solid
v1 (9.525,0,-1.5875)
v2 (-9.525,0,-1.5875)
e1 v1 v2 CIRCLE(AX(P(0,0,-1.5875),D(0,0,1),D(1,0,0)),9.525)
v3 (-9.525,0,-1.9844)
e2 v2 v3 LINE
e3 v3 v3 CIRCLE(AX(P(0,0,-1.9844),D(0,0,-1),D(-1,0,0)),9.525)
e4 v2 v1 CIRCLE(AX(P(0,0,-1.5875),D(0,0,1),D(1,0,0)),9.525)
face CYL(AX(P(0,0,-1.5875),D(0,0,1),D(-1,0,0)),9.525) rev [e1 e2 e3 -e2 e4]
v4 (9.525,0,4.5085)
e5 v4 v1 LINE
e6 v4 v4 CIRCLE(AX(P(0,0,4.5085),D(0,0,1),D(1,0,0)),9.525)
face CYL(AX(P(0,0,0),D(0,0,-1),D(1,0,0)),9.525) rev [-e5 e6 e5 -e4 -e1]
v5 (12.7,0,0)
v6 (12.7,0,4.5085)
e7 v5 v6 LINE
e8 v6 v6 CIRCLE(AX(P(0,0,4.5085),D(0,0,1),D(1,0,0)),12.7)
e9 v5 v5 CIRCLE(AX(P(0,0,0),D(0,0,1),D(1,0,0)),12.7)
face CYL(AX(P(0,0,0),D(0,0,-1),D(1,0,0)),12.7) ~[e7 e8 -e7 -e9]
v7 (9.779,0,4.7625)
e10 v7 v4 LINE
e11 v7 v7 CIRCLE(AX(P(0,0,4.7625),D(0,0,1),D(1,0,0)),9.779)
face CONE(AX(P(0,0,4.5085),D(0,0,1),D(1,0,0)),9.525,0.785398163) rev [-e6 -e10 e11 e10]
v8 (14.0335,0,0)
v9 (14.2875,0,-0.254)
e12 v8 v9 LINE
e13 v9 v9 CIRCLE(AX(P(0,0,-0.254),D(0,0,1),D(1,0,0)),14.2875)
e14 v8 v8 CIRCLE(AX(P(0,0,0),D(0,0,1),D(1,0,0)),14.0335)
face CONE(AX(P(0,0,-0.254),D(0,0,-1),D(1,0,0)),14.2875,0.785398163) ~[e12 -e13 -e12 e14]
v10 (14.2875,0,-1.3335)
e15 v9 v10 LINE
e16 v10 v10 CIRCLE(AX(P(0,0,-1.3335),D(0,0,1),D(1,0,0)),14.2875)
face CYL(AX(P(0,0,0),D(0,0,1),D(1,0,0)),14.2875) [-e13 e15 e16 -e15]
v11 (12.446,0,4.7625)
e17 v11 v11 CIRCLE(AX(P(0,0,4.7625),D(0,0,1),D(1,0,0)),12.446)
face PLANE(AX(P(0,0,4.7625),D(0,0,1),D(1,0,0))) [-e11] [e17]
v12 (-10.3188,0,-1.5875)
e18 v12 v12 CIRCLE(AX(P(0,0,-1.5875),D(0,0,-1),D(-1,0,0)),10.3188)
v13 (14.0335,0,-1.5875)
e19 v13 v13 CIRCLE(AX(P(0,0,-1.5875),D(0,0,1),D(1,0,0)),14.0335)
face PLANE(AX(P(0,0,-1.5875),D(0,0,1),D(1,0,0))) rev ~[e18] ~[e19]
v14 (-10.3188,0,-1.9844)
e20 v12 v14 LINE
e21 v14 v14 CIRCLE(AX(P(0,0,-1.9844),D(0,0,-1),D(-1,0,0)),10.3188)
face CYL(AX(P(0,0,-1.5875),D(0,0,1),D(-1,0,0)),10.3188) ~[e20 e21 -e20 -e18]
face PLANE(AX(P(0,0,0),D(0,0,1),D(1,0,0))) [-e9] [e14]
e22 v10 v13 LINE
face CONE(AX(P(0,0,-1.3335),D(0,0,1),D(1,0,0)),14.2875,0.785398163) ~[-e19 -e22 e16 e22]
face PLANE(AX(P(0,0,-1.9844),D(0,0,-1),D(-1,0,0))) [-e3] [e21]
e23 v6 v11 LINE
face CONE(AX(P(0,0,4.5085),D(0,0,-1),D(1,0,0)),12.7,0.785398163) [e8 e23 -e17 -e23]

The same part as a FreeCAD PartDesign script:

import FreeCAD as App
import Part
import Sketcher

V = App.Vector
Q = App.Units.Quantity


def edges_at(feature, points):
    """Names of the edges that pass closest to the given points."""
    edges = feature.Shape.Edges
    near = lambda p: min(range(len(edges)), key=lambda i: edges[i].distToShape(Part.Vertex(*p))[0])
    return sorted({f"Edge{near(p) + 1}" for p in points})

doc = App.newDocument("Part")
body = doc.addObject("PartDesign::Body", "Body")

sketch1 = body.newObject("Sketcher::SketchObject", "Sketch")
sketch1.AttachmentSupport = (doc.getObject("XY_Plane"), [""])
sketch1.MapMode = "FlatFace"
sketch1.addGeometry([
    Part.Circle(V(0, 0, 0), V(0, 0, 1), 13),
    Part.Circle(V(0, 0, 0), V(0, 0, 1), 10),
], False)
sketch1.addConstraint([
    Sketcher.Constraint("Coincident", 0, 3, -1, 1),
    Sketcher.Constraint("Coincident", 1, 3, -1, 1),
    Sketcher.Constraint("Diameter", 0, Q("1 in")),
    Sketcher.Constraint("Diameter", 1, Q("0.75 in")),
])
pad1 = body.newObject("PartDesign::Pad", "Pad")
pad1.Profile = sketch1
pad1.Length = Q("0.1875 in")

sketch2 = body.newObject("Sketcher::SketchObject", "Sketch001")
sketch2.AttachmentSupport = (doc.getObject("XY_Plane"), [""])
sketch2.MapMode = "FlatFace"
sketch2.addGeometry([
    Part.Circle(V(0, 0, 0), V(0, 0, 1), 14),
    Part.Circle(V(0, 0, 0), V(0, 0, 1), 10),
], False)
sketch2.addConstraint([
    Sketcher.Constraint("Coincident", 0, 3, -1, 1),
    Sketcher.Constraint("Coincident", 1, 3, -1, 1),
    Sketcher.Constraint("Diameter", 1, Q("0.75 in")),
    Sketcher.Constraint("Diameter", 0, Q("1.125 in")),
])
pad2 = body.newObject("PartDesign::Pad", "Pad001")
pad2.Profile = sketch2
pad2.Length = Q("0.0625 in")
pad2.Reversed = True
doc.recompute()

chamfer = body.newObject("PartDesign::Chamfer", "Chamfer")
chamfer.Base = (pad2, edges_at(pad2, [
    (-12.7, 0, 4.763),
    (-9.525, 0, 4.763),
    (-14.287, 0, 0),
    (-14.287, 0, -1.587),
]))
chamfer.Size = Q("0.01 in")

sketch3 = body.newObject("Sketcher::SketchObject", "Sketch002")
sketch3.AttachmentSupport = (doc.getObject("XY_Plane"), [""])
sketch3.MapMode = "FlatFace"
sketch3.AttachmentOffset = App.Placement(V(0, 0, -0.0625 * 25.4), App.Rotation())
sketch3.addGeometry([
    Part.Circle(V(0, 0, 0), V(0, 0, 1), 10),
    Part.Circle(V(0, 0, 0), V(0, 0, 1), 10),
], False)
sketch3.addConstraint([
    Sketcher.Constraint("Coincident", 0, 3, -1, 1),
    Sketcher.Constraint("Coincident", 1, 3, -1, 1),
    Sketcher.Constraint("Diameter", 0, Q("0.8125 in")),
    Sketcher.Constraint("Diameter", 1, Q("0.75 in")),
])
pad3 = body.newObject("PartDesign::Pad", "Pad002")
pad3.Profile = sketch3
pad3.Length = Q("0.015626 in")
pad3.Reversed = True

doc.recompute()
